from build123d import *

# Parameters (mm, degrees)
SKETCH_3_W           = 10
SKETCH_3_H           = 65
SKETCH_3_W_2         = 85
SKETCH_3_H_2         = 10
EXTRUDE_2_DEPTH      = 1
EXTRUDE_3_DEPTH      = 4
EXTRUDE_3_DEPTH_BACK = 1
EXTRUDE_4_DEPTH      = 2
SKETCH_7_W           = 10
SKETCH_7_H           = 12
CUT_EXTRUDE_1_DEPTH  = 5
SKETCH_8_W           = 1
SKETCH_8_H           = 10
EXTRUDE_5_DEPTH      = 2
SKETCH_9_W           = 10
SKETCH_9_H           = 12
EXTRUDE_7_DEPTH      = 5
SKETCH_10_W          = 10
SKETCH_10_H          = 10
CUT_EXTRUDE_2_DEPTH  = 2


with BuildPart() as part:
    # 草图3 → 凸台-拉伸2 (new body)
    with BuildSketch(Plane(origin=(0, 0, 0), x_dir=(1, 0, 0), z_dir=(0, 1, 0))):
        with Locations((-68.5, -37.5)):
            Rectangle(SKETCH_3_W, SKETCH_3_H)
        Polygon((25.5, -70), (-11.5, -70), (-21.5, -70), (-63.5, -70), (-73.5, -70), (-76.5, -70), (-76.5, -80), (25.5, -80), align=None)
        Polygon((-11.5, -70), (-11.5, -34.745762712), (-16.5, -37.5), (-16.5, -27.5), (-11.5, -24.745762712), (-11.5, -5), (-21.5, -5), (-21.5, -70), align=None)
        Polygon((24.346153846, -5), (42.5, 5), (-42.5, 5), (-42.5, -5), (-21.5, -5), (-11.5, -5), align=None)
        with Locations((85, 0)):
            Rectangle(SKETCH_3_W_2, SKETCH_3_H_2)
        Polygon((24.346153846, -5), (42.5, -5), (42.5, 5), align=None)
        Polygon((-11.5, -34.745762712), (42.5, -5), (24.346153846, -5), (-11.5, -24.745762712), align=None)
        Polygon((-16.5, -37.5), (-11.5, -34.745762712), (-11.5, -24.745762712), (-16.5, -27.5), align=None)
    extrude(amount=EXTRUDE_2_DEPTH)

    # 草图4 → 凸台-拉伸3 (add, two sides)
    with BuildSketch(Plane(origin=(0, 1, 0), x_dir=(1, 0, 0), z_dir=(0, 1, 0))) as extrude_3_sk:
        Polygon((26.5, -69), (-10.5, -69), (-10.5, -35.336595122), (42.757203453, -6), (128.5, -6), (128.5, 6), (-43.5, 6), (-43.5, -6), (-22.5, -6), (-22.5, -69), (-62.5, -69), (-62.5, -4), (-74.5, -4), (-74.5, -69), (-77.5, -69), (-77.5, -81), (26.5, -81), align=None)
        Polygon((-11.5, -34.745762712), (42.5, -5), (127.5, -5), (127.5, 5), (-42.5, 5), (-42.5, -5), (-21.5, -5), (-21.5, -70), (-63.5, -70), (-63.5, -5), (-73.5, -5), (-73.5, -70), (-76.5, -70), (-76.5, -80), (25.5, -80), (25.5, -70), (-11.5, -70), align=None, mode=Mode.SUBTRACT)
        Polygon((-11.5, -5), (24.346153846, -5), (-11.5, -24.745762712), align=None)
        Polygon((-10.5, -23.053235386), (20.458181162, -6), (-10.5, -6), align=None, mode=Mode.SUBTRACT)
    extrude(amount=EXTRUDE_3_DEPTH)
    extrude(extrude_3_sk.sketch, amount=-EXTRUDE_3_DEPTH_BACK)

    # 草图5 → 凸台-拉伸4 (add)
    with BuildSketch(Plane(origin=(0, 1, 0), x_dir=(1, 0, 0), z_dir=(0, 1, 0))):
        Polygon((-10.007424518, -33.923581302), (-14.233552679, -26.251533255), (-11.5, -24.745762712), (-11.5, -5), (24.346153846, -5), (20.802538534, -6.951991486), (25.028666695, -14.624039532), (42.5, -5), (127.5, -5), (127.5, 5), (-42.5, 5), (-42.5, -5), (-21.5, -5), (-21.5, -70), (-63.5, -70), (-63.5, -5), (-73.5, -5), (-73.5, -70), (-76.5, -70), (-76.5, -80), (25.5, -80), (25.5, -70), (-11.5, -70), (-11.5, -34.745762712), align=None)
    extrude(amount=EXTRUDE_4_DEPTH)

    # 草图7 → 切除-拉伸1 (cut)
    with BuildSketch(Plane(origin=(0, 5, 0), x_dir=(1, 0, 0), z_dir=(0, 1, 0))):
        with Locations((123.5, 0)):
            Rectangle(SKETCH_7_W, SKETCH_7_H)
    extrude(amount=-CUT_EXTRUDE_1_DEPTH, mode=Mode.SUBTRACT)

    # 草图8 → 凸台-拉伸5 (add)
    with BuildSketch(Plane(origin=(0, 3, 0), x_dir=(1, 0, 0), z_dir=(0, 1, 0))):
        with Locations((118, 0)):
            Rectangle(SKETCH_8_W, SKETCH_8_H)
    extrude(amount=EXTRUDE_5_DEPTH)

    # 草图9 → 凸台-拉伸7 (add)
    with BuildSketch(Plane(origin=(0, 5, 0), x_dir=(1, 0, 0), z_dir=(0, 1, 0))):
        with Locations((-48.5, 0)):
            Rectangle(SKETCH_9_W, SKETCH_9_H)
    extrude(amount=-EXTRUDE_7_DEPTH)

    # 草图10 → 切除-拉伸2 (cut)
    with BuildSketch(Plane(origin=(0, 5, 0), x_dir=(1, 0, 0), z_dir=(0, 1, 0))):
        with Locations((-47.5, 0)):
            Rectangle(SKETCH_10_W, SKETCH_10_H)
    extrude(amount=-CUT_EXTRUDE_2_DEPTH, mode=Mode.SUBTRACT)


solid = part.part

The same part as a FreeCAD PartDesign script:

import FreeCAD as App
import Part
import Sketcher
from FreeCAD import Vector
Q = App.Units.Quantity

doc = App.newDocument("Part")
body = doc.addObject("PartDesign::Body", "Body")

sketch1 = body.newObject("Sketcher::SketchObject", "Sketch")
sketch1.AttachmentSupport = (doc.getObject("XZ_Plane"), [""])
sketch1.MapMode = "FlatFace"
sketch1.addGeometry(Part.LineSegment(Vector(-11.5, 70, 0), Vector(-11.5, 34.7, 0)), False)
sketch1.addGeometry(Part.LineSegment(Vector(-11.5, 34.7, 0), Vector(42.5, 5, 0)), False)
sketch1.addGeometry(Part.LineSegment(Vector(42.5, 5, 0), Vector(127.5, 5, 0)), False)
sketch1.addGeometry(Part.LineSegment(Vector(127.5, 5, 0), Vector(127.5, -5, 0)), False)
sketch1.addGeometry(Part.LineSegment(Vector(127.5, -5, 0), Vector(-42.5, -5, 0)), False)
sketch1.addGeometry(Part.LineSegment(Vector(-42.5, -5, 0), Vector(-42.5, 5, 0)), False)
sketch1.addGeometry(Part.LineSegment(Vector(-42.5, 5, 0), Vector(-21.5, 5, 0)), False)
sketch1.addGeometry(Part.LineSegment(Vector(-21.5, 5, 0), Vector(-21.5, 70, 0)), False)
sketch1.addGeometry(Part.LineSegment(Vector(-21.5, 70, 0), Vector(-63.5, 70, 0)), False)
sketch1.addGeometry(Part.LineSegment(Vector(-63.5, 70, 0), Vector(-63.5, 5, 0)), False)
sketch1.addGeometry(Part.LineSegment(Vector(-63.5, 5, 0), Vector(-73.5, 5, 0)), False)
sketch1.addGeometry(Part.LineSegment(Vector(-73.5, 5, 0), Vector(-73.5, 70, 0)), False)
sketch1.addGeometry(Part.LineSegment(Vector(-73.5, 70, 0), Vector(-76.5, 70, 0)), False)
sketch1.addGeometry(Part.LineSegment(Vector(-76.5, 70, 0), Vector(-76.5, 80, 0)), False)
sketch1.addGeometry(Part.LineSegment(Vector(-76.5, 80, 0), Vector(25.5, 80, 0)), False)
sketch1.addGeometry(Part.LineSegment(Vector(25.5, 80, 0), Vector(25.5, 70, 0)), False)
sketch1.addGeometry(Part.LineSegment(Vector(25.5, 70, 0), Vector(-11.5, 70, 0)), False)
sketch1.addGeometry(Part.LineSegment(Vector(24.3, 5, 0), Vector(-11.5, 24.7, 0)), False)
sketch1.addGeometry(Part.LineSegment(Vector(-11.5, 24.7, 0), Vector(-11.5, 5, 0)), False)
sketch1.addGeometry(Part.LineSegment(Vector(-11.5, 5, 0), Vector(24.3, 5, 0)), False)
sketch1.addConstraint(Sketcher.Constraint("Coincident", 0, 2, 1, 1))
sketch1.addConstraint(Sketcher.Constraint("Coincident", 1, 2, 2, 1))
sketch1.addConstraint(Sketcher.Constraint("Coincident", 2, 2, 3, 1))
sketch1.addConstraint(Sketcher.Constraint("Coincident", 3, 2, 4, 1))
sketch1.addConstraint(Sketcher.Constraint("Coincident", 4, 2, 5, 1))
sketch1.addConstraint(Sketcher.Constraint("Coincident", 5, 2, 6, 1))
sketch1.addConstraint(Sketcher.Constraint("Coincident", 6, 2, 7, 1))
sketch1.addConstraint(Sketcher.Constraint("Coincident", 7, 2, 8, 1))
sketch1.addConstraint(Sketcher.Constraint("Coincident", 8, 2, 9, 1))
sketch1.addConstraint(Sketcher.Constraint("Coincident", 9, 2, 10, 1))
sketch1.addConstraint(Sketcher.Constraint("Coincident", 10, 2, 11, 1))
sketch1.addConstraint(Sketcher.Constraint("Coincident", 11, 2, 12, 1))
sketch1.addConstraint(Sketcher.Constraint("Coincident", 12, 2, 13, 1))
sketch1.addConstraint(Sketcher.Constraint("Coincident", 13, 2, 14, 1))
sketch1.addConstraint(Sketcher.Constraint("Coincident", 14, 2, 15, 1))
sketch1.addConstraint(Sketcher.Constraint("Coincident", 15, 2, 16, 1))
sketch1.addConstraint(Sketcher.Constraint("Coincident", 16, 2, 0, 1))
sketch1.addConstraint(Sketcher.Constraint("Coincident", 17, 2, 18, 1))
sketch1.addConstraint(Sketcher.Constraint("Coincident", 18, 2, 19, 1))
sketch1.addConstraint(Sketcher.Constraint("Coincident", 19, 2, 17, 1))
sketch1.addConstraint(Sketcher.Constraint("Vertical", 0))
sketch1.addConstraint(Sketcher.Constraint("Horizontal", 2))
sketch1.addConstraint(Sketcher.Constraint("Vertical", 3))
sketch1.addConstraint(Sketcher.Constraint("Horizontal", 4))
sketch1.addConstraint(Sketcher.Constraint("Vertical", 5))
sketch1.addConstraint(Sketcher.Constraint("Horizontal", 6))
sketch1.addConstraint(Sketcher.Constraint("Vertical", 7))
sketch1.addConstraint(Sketcher.Constraint("Horizontal", 8))
sketch1.addConstraint(Sketcher.Constraint("Vertical", 9))
sketch1.addConstraint(Sketcher.Constraint("Horizontal", 10))
sketch1.addConstraint(Sketcher.Constraint("Vertical", 11))
sketch1.addConstraint(Sketcher.Constraint("Horizontal", 12))
sketch1.addConstraint(Sketcher.Constraint("Vertical", 13))
sketch1.addConstraint(Sketcher.Constraint("Horizontal", 14))
sketch1.addConstraint(Sketcher.Constraint("Vertical", 15))
sketch1.addConstraint(Sketcher.Constraint("Horizontal", 16))
sketch1.addConstraint(Sketcher.Constraint("Vertical", 18))
sketch1.addConstraint(Sketcher.Constraint("Horizontal", 19))
sketch1.addConstraint(Sketcher.Constraint("Symmetric", 1, 2, 4, 2, -1, 1))
sketch1.addConstraint(Sketcher.Constraint("Parallel", 1, 17))
sketch1.addConstraint(Sketcher.Constraint("Horizontal", 2, 2, 5, 2))
sketch1.addConstraint(Sketcher.Constraint("Horizontal", 6, 2, 9, 2))
sketch1.addConstraint(Sketcher.Constraint("Horizontal", 8, 2, 11, 2))
sketch1.addConstraint(Sketcher.Constraint("Horizontal", 12, 2, 15, 2))
sketch1.addConstraint(Sketcher.Constraint("Horizontal", 10, 2, 18, 2))
sketch1.addConstraint(Sketcher.Constraint("Vertical", 16, 2, 17, 2))
sketch1.addConstraint(Sketcher.Constraint("Equal", 10, 3))
sketch1.addConstraint(Sketcher.Constraint("Equal", 5, 13))
sketch1.addConstraint(Sketcher.Constraint("DistanceX", 2, 1, 2, 2, Q("85 mm")))
sketch1.addConstraint(Sketcher.Constraint("DistanceX", 4, 2, 4, 1, Q("170 mm")))
sketch1.addConstraint(Sketcher.Constraint("DistanceX", 6, 1, 6, 2, Q("21 mm")))
sketch1.addConstraint(Sketcher.Constraint("DistanceX", 8, 2, 8, 1, Q("42 mm")))
sketch1.addConstraint(Sketcher.Constraint("DistanceX", 10, 2, 10, 1, Q("10 mm")))
sketch1.addConstraint(Sketcher.Constraint("DistanceX", 12, 2, 12, 1, Q("3 mm")))
sketch1.addConstraint(Sketcher.Constraint("DistanceX", 14, 1, 14, 2, Q("102 mm")))
sketch1.addConstraint(Sketcher.Constraint("DistanceX", 16, 2, 16, 1, Q("37 mm")))
sketch1.addConstraint(Sketcher.Constraint("DistanceY", 7, 1, 7, 2, Q("65 mm")))
sketch1.addConstraint(Sketcher.Constraint("DistanceY", 17, 2, 0, 2, Q("10 mm")))
sketch1.addConstraint(Sketcher.Constraint("DistanceX", 19, 1, 19, 2, Q("35.846154 mm")))
pad1 = body.newObject("PartDesign::Pad", "Pad")
pad1.Profile = sketch1
pad1.Length = 1
pad1.Reversed = True

sketch2 = body.newObject("Sketcher::SketchObject", "Sketch001")
sketch2.AttachmentSupport = (doc.getObject("XZ_Plane"), [""])
sketch2.MapMode = "FlatFace"
sketch2.AttachmentOffset = App.Placement(Vector(0, 0, -1), App.Rotation())
sketch2.addGeometry(Part.LineSegment(Vector(26.5, 69, 0), Vector(-10.5, 69, 0)), False)
sketch2.addGeometry(Part.LineSegment(Vector(-10.5, 69, 0), Vector(-10.5, 35.3, 0)), False)
sketch2.addGeometry(Part.LineSegment(Vector(-10.5, 35.3, 0), Vector(42.8, 6, 0)), False)
sketch2.addGeometry(Part.LineSegment(Vector(42.8, 6, 0), Vector(128.5, 6, 0)), False)
sketch2.addGeometry(Part.LineSegment(Vector(128.5, 6, 0), Vector(128.5, -6, 0)), False)
sketch2.addGeometry(Part.LineSegment(Vector(128.5, -6, 0), Vector(-43.5, -6, 0)), False)
sketch2.addGeometry(Part.LineSegment(Vector(-43.5, -6, 0), Vector(-43.5, 6, 0)), False)
sketch2.addGeometry(Part.LineSegment(Vector(-43.5, 6, 0), Vector(-22.5, 6, 0)), False)
sketch2.addGeometry(Part.LineSegment(Vector(-22.5, 6, 0), Vector(-22.5, 69, 0)), False)
sketch2.addGeometry(Part.LineSegment(Vector(-22.5, 69, 0), Vector(-62.5, 69, 0)), False)
sketch2.addGeometry(Part.LineSegment(Vector(-62.5, 69, 0), Vector(-62.5, 4, 0)), False)
sketch2.addGeometry(Part.LineSegment(Vector(-62.5, 4, 0), Vector(-74.5, 4, 0)), False)
sketch2.addGeometry(Part.LineSegment(Vector(-74.5, 4, 0), Vector(-74.5, 69, 0)), False)
sketch2.addGeometry(Part.LineSegment(Vector(-74.5, 69, 0), Vector(-77.5, 69, 0)), False)
sketch2.addGeometry(Part.LineSegment(Vector(-77.5, 69, 0), Vector(-77.5, 81, 0)), False)
sketch2.addGeometry(Part.LineSegment(Vector(-77.5, 81, 0), Vector(26.5, 81, 0)), False)
sketch2.addGeometry(Part.LineSegment(Vector(26.5, 81, 0), Vector(26.5, 69, 0)), False)
sketch2.addGeometry(Part.LineSegment(Vector(42.5, 5, 0), Vector(-11.5, 34.7, 0)), False)
sketch2.addGeometry(Part.LineSegment(Vector(-11.5, 34.7, 0), Vector(-11.5, 70, 0)), False)
sketch2.addGeometry(Part.LineSegment(Vector(-11.5, 70, 0), Vector(25.5, 70, 0)), False)
sketch2.addGeometry(Part.LineSegment(Vector(25.5, 70, 0), Vector(25.5, 80, 0)), False)
sketch2.addGeometry(Part.LineSegment(Vector(25.5, 80, 0), Vector(-76.5, 80, 0)), False)
sketch2.addGeometry(Part.LineSegment(Vector(-76.5, 80, 0), Vector(-76.5, 70, 0)), False)
sketch2.addGeometry(Part.LineSegment(Vector(-76.5, 70, 0), Vector(-73.5, 70, 0)), False)
sketch2.addGeometry(Part.LineSegment(Vector(-73.5, 70, 0), Vector(-73.5, 5, 0)), False)
sketch2.addGeometry(Part.LineSegment(Vector(-73.5, 5, 0), Vector(-63.5, 5, 0)), False)
sketch2.addGeometry(Part.LineSegment(Vector(-63.5, 5, 0), Vector(-63.5, 70, 0)), False)
sketch2.addGeometry(Part.LineSegment(Vector(-63.5, 70, 0), Vector(-21.5, 70, 0)), False)
sketch2.addGeometry(Part.LineSegment(Vector(-21.5, 70, 0), Vector(-21.5, 5, 0)), False)
sketch2.addGeometry(Part.LineSegment(Vector(-21.5, 5, 0), Vector(-42.5, 5, 0)), False)
sketch2.addGeometry(Part.LineSegment(Vector(-42.5, 5, 0), Vector(-42.5, -5, 0)), False)
sketch2.addGeometry(Part.LineSegment(Vector(-42.5, -5, 0), Vector(127.5, -5, 0)), False)
sketch2.addGeometry(Part.LineSegment(Vector(127.5, -5, 0), Vector(127.5, 5, 0)), False)
sketch2.addGeometry(Part.LineSegment(Vector(127.5, 5, 0), Vector(42.5, 5, 0)), False)
sketch2.addGeometry(Part.LineSegment(Vector(24.3, 5, 0), Vector(-11.5, 5, 0)), False)
sketch2.addGeometry(Part.LineSegment(Vector(-11.5, 5, 0), Vector(-11.5, 24.7, 0)), False)
sketch2.addGeometry(Part.LineSegment(Vector(-11.5, 24.7, 0), Vector(24.3, 5, 0)), False)
sketch2.addGeometry(Part.LineSegment(Vector(-10.5, 23.1, 0), Vector(-10.5, 6, 0)), False)
sketch2.addGeometry(Part.LineSegment(Vector(-10.5, 6, 0), Vector(20.5, 6, 0)), False)
sketch2.addGeometry(Part.LineSegment(Vector(20.5, 6, 0), Vector(-10.5, 23.1, 0)), False)
sketch2.addConstraint(Sketcher.Constraint("Coincident", 0, 2, 1, 1))
sketch2.addConstraint(Sketcher.Constraint("Coincident", 1, 2, 2, 1))
sketch2.addConstraint(Sketcher.Constraint("Coincident", 2, 2, 3, 1))
sketch2.addConstraint(Sketcher.Constraint("Coincident", 3, 2, 4, 1))
sketch2.addConstraint(Sketcher.Constraint("Coincident", 4, 2, 5, 1))
sketch2.addConstraint(Sketcher.Constraint("Coincident", 5, 2, 6, 1))
sketch2.addConstraint(Sketcher.Constraint("Coincident", 6, 2, 7, 1))
sketch2.addConstraint(Sketcher.Constraint("Coincident", 7, 2, 8, 1))
sketch2.addConstraint(Sketcher.Constraint("Coincident", 8, 2, 9, 1))
sketch2.addConstraint(Sketcher.Constraint("Coincident", 9, 2, 10, 1))
sketch2.addConstraint(Sketcher.Constraint("Coincident", 10, 2, 11, 1))
sketch2.addConstraint(Sketcher.Constraint("Coincident", 11, 2, 12, 1))
sketch2.addConstraint(Sketcher.Constraint("Coincident", 12, 2, 13, 1))
sketch2.addConstraint(Sketcher.Constraint("Coincident", 13, 2, 14, 1))
sketch2.addConstraint(Sketcher.Constraint("Coincident", 14, 2, 15, 1))
sketch2.addConstraint(Sketcher.Constraint("Coincident", 15, 2, 16, 1))
sketch2.addConstraint(Sketcher.Constraint("Coincident", 16, 2, 0, 1))
sketch2.addConstraint(Sketcher.Constraint("Coincident", 17, 2, 18, 1))
sketch2.addConstraint(Sketcher.Constraint("Coincident", 18, 2, 19, 1))
sketch2.addConstraint(Sketcher.Constraint("Coincident", 19, 2, 20, 1))
sketch2.addConstraint(Sketcher.Constraint("Coincident", 20, 2, 21, 1))
sketch2.addConstraint(Sketcher.Constraint("Coincident", 21, 2, 22, 1))
sketch2.addConstraint(Sketcher.Constraint("Coincident", 22, 2, 23, 1))
sketch2.addConstraint(Sketcher.Constraint("Coincident", 23, 2, 24, 1))
sketch2.addConstraint(Sketcher.Constraint("Coincident", 24, 2, 25, 1))
sketch2.addConstraint(Sketcher.Constraint("Coincident", 25, 2, 26, 1))
sketch2.addConstraint(Sketcher.Constraint("Coincident", 26, 2, 27, 1))
sketch2.addConstraint(Sketcher.Constraint("Coincident", 27, 2, 28, 1))
sketch2.addConstraint(Sketcher.Constraint("Coincident", 28, 2, 29, 1))
sketch2.addConstraint(Sketcher.Constraint("Coincident", 29, 2, 30, 1))
sketch2.addConstraint(Sketcher.Constraint("Coincident", 30, 2, 31, 1))
sketch2.addConstraint(Sketcher.Constraint("Coincident", 31, 2, 32, 1))
sketch2.addConstraint(Sketcher.Constraint("Coincident", 32, 2, 33, 1))
sketch2.addConstraint(Sketcher.Constraint("Coincident", 33, 2, 17, 1))
sketch2.addConstraint(Sketcher.Constraint("Coincident", 34, 2, 35, 1))
sketch2.addConstraint(Sketcher.Constraint("Coincident", 35, 2, 36, 1))
sketch2.addConstraint(Sketcher.Constraint("Coincident", 36, 2, 34, 1))
sketch2.addConstraint(Sketcher.Constraint("Coincident", 37, 2, 38, 1))
sketch2.addConstraint(Sketcher.Constraint("Coincident", 38, 2, 39, 1))
sketch2.addConstraint(Sketcher.Constraint("Coincident", 39, 2, 37, 1))
sketch2.addConstraint(Sketcher.Constraint("Horizontal", 0))
sketch2.addConstraint(Sketcher.Constraint("Vertical", 1))
sketch2.addConstraint(Sketcher.Constraint("Horizontal", 3))
sketch2.addConstraint(Sketcher.Constraint("Vertical", 4))
sketch2.addConstraint(Sketcher.Constraint("Horizontal", 5))
sketch2.addConstraint(Sketcher.Constraint("Vertical", 6))
sketch2.addConstraint(Sketcher.Constraint("Horizontal", 7))
sketch2.addConstraint(Sketcher.Constraint("Vertical", 8))
sketch2.addConstraint(Sketcher.Constraint("Horizontal", 9))
sketch2.addConstraint(Sketcher.Constraint("Vertical", 10))
sketch2.addConstraint(Sketcher.Constraint("Horizontal", 11))
sketch2.addConstraint(Sketcher.Constraint("Vertical", 12))
sketch2.addConstraint(Sketcher.Constraint("Horizontal", 13))
sketch2.addConstraint(Sketcher.Constraint("Vertical", 14))
sketch2.addConstraint(Sketcher.Constraint("Horizontal", 15))
sketch2.addConstraint(Sketcher.Constraint("Vertical", 16))
sketch2.addConstraint(Sketcher.Constraint("Vertical", 18))
sketch2.addConstraint(Sketcher.Constraint("Horizontal", 19))
sketch2.addConstraint(Sketcher.Constraint("Vertical", 20))
sketch2.addConstraint(Sketcher.Constraint("Horizontal", 21))
sketch2.addConstraint(Sketcher.Constraint("Vertical", 22))
sketch2.addConstraint(Sketcher.Constraint("Horizontal", 23))
sketch2.addConstraint(Sketcher.Constraint("Vertical", 24))
sketch2.addConstraint(Sketcher.Constraint("Horizontal", 25))
sketch2.addConstraint(Sketcher.Constraint("Vertical", 26))
sketch2.addConstraint(Sketcher.Constraint("Horizontal", 27))
sketch2.addConstraint(Sketcher.Constraint("Vertical", 28))
sketch2.addConstraint(Sketcher.Constraint("Horizontal", 29))
sketch2.addConstraint(Sketcher.Constraint("Vertical", 30))
sketch2.addConstraint(Sketcher.Constraint("Horizontal", 31))
sketch2.addConstraint(Sketcher.Constraint("Vertical", 32))
sketch2.addConstraint(Sketcher.Constraint("Horizontal", 33))
sketch2.addConstraint(Sketcher.Constraint("Horizontal", 34))
sketch2.addConstraint(Sketcher.Constraint("Vertical", 35))
sketch2.addConstraint(Sketcher.Constraint("Vertical", 37))
sketch2.addConstraint(Sketcher.Constraint("Horizontal", 38))
sketch2.addConstraint(Sketcher.Constraint("Symmetric", 30, 2, 33, 2, -1, 1))
sketch2.addConstraint(Sketcher.Constraint("Parallel", 2, 17))
sketch2.addConstraint(Sketcher.Constraint("Parallel", 17, 36))
sketch2.addConstraint(Sketcher.Constraint("Parallel", 36, 39))
sketch2.addConstraint(Sketcher.Constraint("Horizontal", 3, 2, 6, 2))
sketch2.addConstraint(Sketcher.Constraint("Horizontal", 0, 2, 8, 2))
sketch2.addConstraint(Sketcher.Constraint("Horizontal", 9, 2, 12, 2))
sketch2.addConstraint(Sketcher.Constraint("Horizontal", 19, 2, 22, 2))
sketch2.addConstraint(Sketcher.Constraint("Horizontal", 23, 2, 26, 2))
sketch2.addConstraint(Sketcher.Constraint("Horizontal", 25, 2, 28, 2))
sketch2.addConstraint(Sketcher.Constraint("Horizontal", 29, 2, 32, 2))
sketch2.addConstraint(Sketcher.Constraint("Horizontal", 33, 2, 34, 2))
sketch2.addConstraint(Sketcher.Constraint("Horizontal", 7, 2, 37, 2))
sketch2.addConstraint(Sketcher.Constraint("Vertical", 18, 2, 34, 2))
sketch2.addConstraint(Sketcher.Constraint("Vertical", 1, 2, 37, 2))
sketch2.addConstraint(Sketcher.Constraint("Equal", 0, 19))
sketch2.addConstraint(Sketcher.Constraint("Equal", 13, 23))
sketch2.addConstraint(Sketcher.Constraint("Equal", 7, 29))
sketch2.addConstraint(Sketcher.Constraint("Equal", 11, 4))
sketch2.addConstraint(Sketcher.Constraint("Equal", 6, 14))
sketch2.addConstraint(Sketcher.Constraint("Equal", 25, 20))
sketch2.addConstraint(Sketcher.Constraint("Equal", 12, 24))
sketch2.addConstraint(Sketcher.Constraint("Equal", 22, 30))
sketch2.addConstraint(Sketcher.Constraint("DistanceX", 0, 2, 0, 1, Q("37 mm")))
sketch2.addConstraint(Sketcher.Constraint("DistanceX", 5, 2, 5, 1, Q("172 mm")))
sketch2.addConstraint(Sketcher.Constraint("DistanceX", 7, 1, 7, 2, Q("21 mm")))
sketch2.addConstraint(Sketcher.Constraint("DistanceX", 9, 2, 9, 1, Q("40 mm")))
sketch2.addConstraint(Sketcher.Constraint("DistanceX", 11, 2, 11, 1, Q("12 mm")))
sketch2.addConstraint(Sketcher.Constraint("DistanceX", 13, 2, 13, 1, Q("3 mm")))
sketch2.addConstraint(Sketcher.Constraint("DistanceX", 15, 1, 15, 2, Q("104 mm")))
sketch2.addConstraint(Sketcher.Constraint("DistanceX", 21, 2, 21, 1, Q("102 mm")))
sketch2.addConstraint(Sketcher.Constraint("DistanceX", 25, 1, 25, 2, Q("10 mm")))
sketch2.addConstraint(Sketcher.Constraint("DistanceX", 27, 1, 27, 2, Q("42 mm")))
sketch2.addConstraint(Sketcher.Constraint("DistanceX", 31, 1, 31, 2, Q("170 mm")))
sketch2.addConstraint(Sketcher.Constraint("DistanceX", 33, 2, 33, 1, Q("85 mm")))
sketch2.addConstraint(Sketcher.Constraint("DistanceY", 8, 1, 8, 2, Q("63 mm")))
sketch2.addConstraint(Sketcher.Constraint("DistanceY", 10, 2, 10, 1, Q("65 mm")))
sketch2.addConstraint(Sketcher.Constraint("DistanceY", -1, 1, 0, 2, Q("69 mm")))
sketch2.addConstraint(Sketcher.Constraint("DistanceX", 17, 2, 1, 2, Q("1 mm")))
sketch2.addConstraint(Sketcher.Constraint("DistanceY", 35, 2, 17, 2, Q("10 mm")))
sketch2.addConstraint(Sketcher.Constraint("DistanceX", 38, 1, 38, 2, Q("30.958181 mm")))
sketch2.addConstraint(Sketcher.Constraint("DistanceX", 3, 1, 3, 2, Q("85.742797 mm")))
sketch2.addConstraint(Sketcher.Constraint("DistanceX", 34, 2, 34, 1, Q("35.846154 mm")))
pad2 = body.newObject("PartDesign::Pad", "Pad001")
pad2.Profile = sketch2
pad2.Type = "TwoLengths"
pad2.Length = 4
pad2.Length2 = 1
pad2.Reversed = True

sketch3 = body.newObject("Sketcher::SketchObject", "Sketch002")
sketch3.AttachmentSupport = (doc.getObject("XZ_Plane"), [""])
sketch3.MapMode = "FlatFace"
sketch3.AttachmentOffset = App.Placement(Vector(0, 0, -1), App.Rotation())
sketch3.addGeometry(Part.LineSegment(Vector(-10, 33.9, 0), Vector(-14.2, 26.3, 0)), False)
sketch3.addGeometry(Part.LineSegment(Vector(-14.2, 26.3, 0), Vector(-11.5, 24.7, 0)), False)
sketch3.addGeometry(Part.LineSegment(Vector(-11.5, 24.7, 0), Vector(-11.5, 5, 0)), False)
sketch3.addGeometry(Part.LineSegment(Vector(-11.5, 5, 0), Vector(24.3, 5, 0)), False)
sketch3.addGeometry(Part.LineSegment(Vector(24.3, 5, 0), Vector(20.8, 7, 0)), False)
sketch3.addGeometry(Part.LineSegment(Vector(20.8, 7, 0), Vector(25, 14.6, 0)), False)
sketch3.addGeometry(Part.LineSegment(Vector(25, 14.6, 0), Vector(42.5, 5, 0)), False)
sketch3.addGeometry(Part.LineSegment(Vector(42.5, 5, 0), Vector(127.5, 5, 0)), False)
sketch3.addGeometry(Part.LineSegment(Vector(127.5, 5, 0), Vector(127.5, -5, 0)), False)
sketch3.addGeometry(Part.LineSegment(Vector(127.5, -5, 0), Vector(-42.5, -5, 0)), False)
sketch3.addGeometry(Part.LineSegment(Vector(-42.5, -5, 0), Vector(-42.5, 5, 0)), False)
sketch3.addGeometry(Part.LineSegment(Vector(-42.5, 5, 0), Vector(-21.5, 5, 0)), False)
sketch3.addGeometry(Part.LineSegment(Vector(-21.5, 5, 0), Vector(-21.5, 70, 0)), False)
sketch3.addGeometry(Part.LineSegment(Vector(-21.5, 70, 0), Vector(-63.5, 70, 0)), False)
sketch3.addGeometry(Part.LineSegment(Vector(-63.5, 70, 0), Vector(-63.5, 5, 0)), False)
sketch3.addGeometry(Part.LineSegment(Vector(-63.5, 5, 0), Vector(-73.5, 5, 0)), False)
sketch3.addGeometry(Part.LineSegment(Vector(-73.5, 5, 0), Vector(-73.5, 70, 0)), False)
sketch3.addGeometry(Part.LineSegment(Vector(-73.5, 70, 0), Vector(-76.5, 70, 0)), False)
sketch3.addGeometry(Part.LineSegment(Vector(-76.5, 70, 0), Vector(-76.5, 80, 0)), False)
sketch3.addGeometry(Part.LineSegment(Vector(-76.5, 80, 0), Vector(25.5, 80, 0)), False)
sketch3.addGeometry(Part.LineSegment(Vector(25.5, 80, 0), Vector(25.5, 70, 0)), False)
sketch3.addGeometry(Part.LineSegment(Vector(25.5, 70, 0), Vector(-11.5, 70, 0)), False)
sketch3.addGeometry(Part.LineSegment(Vector(-11.5, 70, 0), Vector(-11.5, 34.7, 0)), False)
sketch3.addGeometry(Part.LineSegment(Vector(-11.5, 34.7, 0), Vector(-10, 33.9, 0)), False)
sketch3.addConstraint(Sketcher.Constraint("Coincident", 0, 2, 1, 1))
sketch3.addConstraint(Sketcher.Constraint("Coincident", 1, 2, 2, 1))
sketch3.addConstraint(Sketcher.Constraint("Coincident", 2, 2, 3, 1))
sketch3.addConstraint(Sketcher.Constraint("Coincident", 3, 2, 4, 1))
sketch3.addConstraint(Sketcher.Constraint("Coincident", 4, 2, 5, 1))
sketch3.addConstraint(Sketcher.Constraint("Coincident", 5, 2, 6, 1))
sketch3.addConstraint(Sketcher.Constraint("Coincident", 6, 2, 7, 1))
sketch3.addConstraint(Sketcher.Constraint("Coincident", 7, 2, 8, 1))
sketch3.addConstraint(Sketcher.Constraint("Coincident", 8, 2, 9, 1))
sketch3.addConstraint(Sketcher.Constraint("Coincident", 9, 2, 10, 1))
sketch3.addConstraint(Sketcher.Constraint("Coincident", 10, 2, 11, 1))
sketch3.addConstraint(Sketcher.Constraint("Coincident", 11, 2, 12, 1))
sketch3.addConstraint(Sketcher.Constraint("Coincident", 12, 2, 13, 1))
sketch3.addConstraint(Sketcher.Constraint("Coincident", 13, 2, 14, 1))
sketch3.addConstraint(Sketcher.Constraint("Coincident", 14, 2, 15, 1))
sketch3.addConstraint(Sketcher.Constraint("Coincident", 15, 2, 16, 1))
sketch3.addConstraint(Sketcher.Constraint("Coincident", 16, 2, 17, 1))
sketch3.addConstraint(Sketcher.Constraint("Coincident", 17, 2, 18, 1))
sketch3.addConstraint(Sketcher.Constraint("Coincident", 18, 2, 19, 1))
sketch3.addConstraint(Sketcher.Constraint("Coincident", 19, 2, 20, 1))
sketch3.addConstraint(Sketcher.Constraint("Coincident", 20, 2, 21, 1))
sketch3.addConstraint(Sketcher.Constraint("Coincident", 21, 2, 22, 1))
sketch3.addConstraint(Sketcher.Constraint("Coincident", 22, 2, 23, 1))
sketch3.addConstraint(Sketcher.Constraint("Coincident", 23, 2, 0, 1))
sketch3.addConstraint(Sketcher.Constraint("Vertical", 2))
sketch3.addConstraint(Sketcher.Constraint("Horizontal", 3))
sketch3.addConstraint(Sketcher.Constraint("Horizontal", 7))
sketch3.addConstraint(Sketcher.Constraint("Vertical", 8))
sketch3.addConstraint(Sketcher.Constraint("Horizontal", 9))
sketch3.addConstraint(Sketcher.Constraint("Vertical", 10))
sketch3.addConstraint(Sketcher.Constraint("Horizontal", 11))
sketch3.addConstraint(Sketcher.Constraint("Vertical", 12))
sketch3.addConstraint(Sketcher.Constraint("Horizontal", 13))
sketch3.addConstraint(Sketcher.Constraint("Vertical", 14))
sketch3.addConstraint(Sketcher.Constraint("Horizontal", 15))
sketch3.addConstraint(Sketcher.Constraint("Vertical", 16))
sketch3.addConstraint(Sketcher.Constraint("Horizontal", 17))
sketch3.addConstraint(Sketcher.Constraint("Vertical", 18))
sketch3.addConstraint(Sketcher.Constraint("Horizontal", 19))
sketch3.addConstraint(Sketcher.Constraint("Vertical", 20))
sketch3.addConstraint(Sketcher.Constraint("Horizontal", 21))
sketch3.addConstraint(Sketcher.Constraint("Vertical", 22))
sketch3.addConstraint(Sketcher.Constraint("Symmetric", 6, 2, 9, 2, -1, 1))
sketch3.addConstraint(Sketcher.Constraint("Perpendicular", 0, 1))
sketch3.addConstraint(Sketcher.Constraint("Parallel", 1, 4))
sketch3.addConstraint(Sketcher.Constraint("Perpendicular", 4, 5))
sketch3.addConstraint(Sketcher.Constraint("Perpendicular", 5, 6))
sketch3.addConstraint(Sketcher.Constraint("Parallel", 6, 23))
sketch3.addConstraint(Sketcher.Constraint("Horizontal", 3, 2, 6, 2))
sketch3.addConstraint(Sketcher.Constraint("Horizontal", 7, 2, 10, 2))
sketch3.addConstraint(Sketcher.Constraint("Horizontal", 11, 2, 14, 2))
sketch3.addConstraint(Sketcher.Constraint("Horizontal", 13, 2, 16, 2))
sketch3.addConstraint(Sketcher.Constraint("Horizontal", 17, 2, 20, 2))
sketch3.addConstraint(Sketcher.Constraint("Vertical", 2, 2, 21, 2))
sketch3.addConstraint(Sketcher.Constraint("Equal", 15, 8))
sketch3.addConstraint(Sketcher.Constraint("Equal", 10, 18))
sketch3.addConstraint(Sketcher.Constraint("Equal", 0, 5))
sketch3.addConstraint(Sketcher.Constraint("DistanceX", 7, 1, 7, 2, Q("85 mm")))
sketch3.addConstraint(Sketcher.Constraint("DistanceX", 9, 2, 9, 1, Q("170 mm")))
sketch3.addConstraint(Sketcher.Constraint("DistanceX", 11, 1, 11, 2, Q("21 mm")))
sketch3.addConstraint(Sketcher.Constraint("DistanceX", 13, 2, 13, 1, Q("42 mm")))
sketch3.addConstraint(Sketcher.Constraint("DistanceX", 15, 2, 15, 1, Q("10 mm")))
sketch3.addConstraint(Sketcher.Constraint("DistanceX", 17, 2, 17, 1, Q("3 mm")))
sketch3.addConstraint(Sketcher.Constraint("DistanceX", 19, 1, 19, 2, Q("102 mm")))
sketch3.addConstraint(Sketcher.Constraint("DistanceX", 21, 2, 21, 1, Q("37 mm")))
sketch3.addConstraint(Sketcher.Constraint("DistanceY", 12, 1, 12, 2, Q("65 mm")))
sketch3.addConstraint(Sketcher.Constraint("DistanceY", 1, 2, 22, 2, Q("10 mm")))
sketch3.addConstraint(Sketcher.Constraint("Distance", 6, Q("19.94667 mm")))
sketch3.addConstraint(Sketcher.Constraint("DistanceX", 3, 1, 3, 2, Q("35.846154 mm")))
sketch3.addConstraint(Sketcher.Constraint("DistanceY", 2, 2, 2, 1, Q("19.745763 mm")))
sketch3.addConstraint(Sketcher.Constraint("DistanceY", -1, 1, 23, 2, Q("33.923581 mm")))
pad3 = body.newObject("PartDesign::Pad", "Pad002")
pad3.Profile = sketch3
pad3.Length = 2
pad3.Reversed = True

sketch4 = body.newObject("Sketcher::SketchObject", "Sketch003")
sketch4.AttachmentSupport = (doc.getObject("XZ_Plane"), [""])
sketch4.MapMode = "FlatFace"
sketch4.AttachmentOffset = App.Placement(Vector(0, 0, -5), App.Rotation())
sketch4.addGeometry(Part.LineSegment(Vector(118, -6, 0), Vector(118, 6, 0)), False)
sketch4.addGeometry(Part.LineSegment(Vector(118, 6, 0), Vector(128, 6, 0)), False)
sketch4.addGeometry(Part.LineSegment(Vector(128, 6, 0), Vector(128, -6, 0)), False)
sketch4.addGeometry(Part.LineSegment(Vector(128, -6, 0), Vector(118, -6, 0)), False)
sketch4.addConstraint(Sketcher.Constraint("Coincident", 0, 2, 1, 1))
sketch4.addConstraint(Sketcher.Constraint("Coincident", 1, 2, 2, 1))
sketch4.addConstraint(Sketcher.Constraint("Coincident", 2, 2, 3, 1))
sketch4.addConstraint(Sketcher.Constraint("Coincident", 3, 2, 0, 1))
sketch4.addConstraint(Sketcher.Constraint("Vertical", 0))
sketch4.addConstraint(Sketcher.Constraint("Horizontal", 1))
sketch4.addConstraint(Sketcher.Constraint("Vertical", 2))
sketch4.addConstraint(Sketcher.Constraint("Horizontal", 3))
sketch4.addConstraint(Sketcher.Constraint("DistanceX", 1, 1, 1, 2, Q("10 mm")))
sketch4.addConstraint(Sketcher.Constraint("DistanceY", 0, 1, 0, 2, Q("12 mm")))
sketch4.addConstraint(Sketcher.Constraint("DistanceY", -1, 1, 0, 2, Q("6 mm")))
sketch4.addConstraint(Sketcher.Constraint("DistanceX", -1, 1, 0, 2, Q("118.5 mm")))
pocket1 = body.newObject("PartDesign::Pocket", "Pocket")
pocket1.Profile = sketch4
pocket1.Length = 5
pocket1.Reversed = True

sketch5 = body.newObject("Sketcher::SketchObject", "Sketch004")
sketch5.AttachmentSupport = (doc.getObject("XZ_Plane"), [""])
sketch5.MapMode = "FlatFace"
sketch5.AttachmentOffset = App.Placement(Vector(0, 0, -3), App.Rotation())
sketch5.addGeometry(Part.LineSegment(Vector(117.5, -5, 0), Vector(117.5, 5, 0)), False)
sketch5.addGeometry(Part.LineSegment(Vector(117.5, 5, 0), Vector(118.5, 5, 0)), False)
sketch5.addGeometry(Part.LineSegment(Vector(118.5, 5, 0), Vector(118.5, -5, 0)), False)
sketch5.addGeometry(Part.LineSegment(Vector(118.5, -5, 0), Vector(117.5, -5, 0)), False)
sketch5.addConstraint(Sketcher.Constraint("Coincident", 0, 2, 1, 1))
sketch5.addConstraint(Sketcher.Constraint("Coincident", 1, 2, 2, 1))
sketch5.addConstraint(Sketcher.Constraint("Coincident", 2, 2, 3, 1))
sketch5.addConstraint(Sketcher.Constraint("Coincident", 3, 2, 0, 1))
sketch5.addConstraint(Sketcher.Constraint("Vertical", 0))
sketch5.addConstraint(Sketcher.Constraint("Horizontal", 1))
sketch5.addConstraint(Sketcher.Constraint("Vertical", 2))
sketch5.addConstraint(Sketcher.Constraint("Horizontal", 3))
sketch5.addConstraint(Sketcher.Constraint("DistanceX", 1, 1, 1, 2, Q("1 mm")))
sketch5.addConstraint(Sketcher.Constraint("DistanceY", 0, 1, 0, 2, Q("10 mm")))
sketch5.addConstraint(Sketcher.Constraint("DistanceY", -1, 1, 0, 2, Q("5 mm")))
sketch5.addConstraint(Sketcher.Constraint("DistanceX", -1, 1, 0, 2, Q("117.5 mm")))
pad4 = body.newObject("PartDesign::Pad", "Pad003")
pad4.Profile = sketch5
pad4.Length = 2
pad4.Reversed = True

sketch6 = body.newObject("Sketcher::SketchObject", "Sketch005")
sketch6.AttachmentSupport = (doc.getObject("XZ_Plane"), [""])
sketch6.MapMode = "FlatFace"
sketch6.AttachmentOffset = App.Placement(Vector(0, 0, -5), App.Rotation())
sketch6.addGeometry(Part.LineSegment(Vector(-54, -6, 0), Vector(-54, 6, 0)), False)
sketch6.addGeometry(Part.LineSegment(Vector(-54, 6, 0), Vector(-44, 6, 0)), False)
sketch6.addGeometry(Part.LineSegment(Vector(-44, 6, 0), Vector(-44, -6, 0)), False)
sketch6.addGeometry(Part.LineSegment(Vector(-44, -6, 0), Vector(-54, -6, 0)), False)
sketch6.addConstraint(Sketcher.Constraint("Coincident", 0, 2, 1, 1))
sketch6.addConstraint(Sketcher.Constraint("Coincident", 1, 2, 2, 1))
sketch6.addConstraint(Sketcher.Constraint("Coincident", 2, 2, 3, 1))
sketch6.addConstraint(Sketcher.Constraint("Coincident", 3, 2, 0, 1))
sketch6.addConstraint(Sketcher.Constraint("Vertical", 0))
sketch6.addConstraint(Sketcher.Constraint("Horizontal", 1))
sketch6.addConstraint(Sketcher.Constraint("Vertical", 2))
sketch6.addConstraint(Sketcher.Constraint("Horizontal", 3))
sketch6.addConstraint(Sketcher.Constraint("DistanceX", 1, 1, 1, 2, Q("10 mm")))
sketch6.addConstraint(Sketcher.Constraint("DistanceY", 0, 1, 0, 2, Q("12 mm")))
sketch6.addConstraint(Sketcher.Constraint("DistanceY", -1, 1, 0, 2, Q("6 mm")))
sketch6.addConstraint(Sketcher.Constraint("DistanceX", 0, 2, -1, 1, Q("53.5 mm")))
pad5 = body.newObject("PartDesign::Pad", "Pad004")
pad5.Profile = sketch6
pad5.Length = 5

sketch7 = body.newObject("Sketcher::SketchObject", "Sketch006")
sketch7.AttachmentSupport = (doc.getObject("XZ_Plane"), [""])
sketch7.MapMode = "FlatFace"
sketch7.AttachmentOffset = App.Placement(Vector(0, 0, -5), App.Rotation())
sketch7.addGeometry(Part.LineSegment(Vector(-52, -5, 0), Vector(-52, 5, 0)), False)
sketch7.addGeometry(Part.LineSegment(Vector(-52, 5, 0), Vector(-42, 5, 0)), False)
sketch7.addGeometry(Part.LineSegment(Vector(-42, 5, 0), Vector(-42, -5, 0)), False)
sketch7.addGeometry(Part.LineSegment(Vector(-42, -5, 0), Vector(-52, -5, 0)), False)
sketch7.addConstraint(Sketcher.Constraint("Coincident", 0, 2, 1, 1))
sketch7.addConstraint(Sketcher.Constraint("Coincident", 1, 2, 2, 1))
sketch7.addConstraint(Sketcher.Constraint("Coincident", 2, 2, 3, 1))
sketch7.addConstraint(Sketcher.Constraint("Coincident", 3, 2, 0, 1))
sketch7.addConstraint(Sketcher.Constraint("Vertical", 0))
sketch7.addConstraint(Sketcher.Constraint("Horizontal", 1))
sketch7.addConstraint(Sketcher.Constraint("Vertical", 2))
sketch7.addConstraint(Sketcher.Constraint("Horizontal", 3))
sketch7.addConstraint(Sketcher.Constraint("Equal", 3, 0))
sketch7.addConstraint(Sketcher.Constraint("DistanceX", 1, 1, 1, 2, Q("10 mm")))
sketch7.addConstraint(Sketcher.Constraint("DistanceY", -1, 1, 0, 2, Q("5 mm")))
sketch7.addConstraint(Sketcher.Constraint("DistanceX", 0, 2, -1, 1, Q("52.5 mm")))
pocket2 = body.newObject("PartDesign::Pocket", "Pocket001")
pocket2.Profile = sketch7
pocket2.Length = 2
pocket2.Reversed = True

doc.recompute()
